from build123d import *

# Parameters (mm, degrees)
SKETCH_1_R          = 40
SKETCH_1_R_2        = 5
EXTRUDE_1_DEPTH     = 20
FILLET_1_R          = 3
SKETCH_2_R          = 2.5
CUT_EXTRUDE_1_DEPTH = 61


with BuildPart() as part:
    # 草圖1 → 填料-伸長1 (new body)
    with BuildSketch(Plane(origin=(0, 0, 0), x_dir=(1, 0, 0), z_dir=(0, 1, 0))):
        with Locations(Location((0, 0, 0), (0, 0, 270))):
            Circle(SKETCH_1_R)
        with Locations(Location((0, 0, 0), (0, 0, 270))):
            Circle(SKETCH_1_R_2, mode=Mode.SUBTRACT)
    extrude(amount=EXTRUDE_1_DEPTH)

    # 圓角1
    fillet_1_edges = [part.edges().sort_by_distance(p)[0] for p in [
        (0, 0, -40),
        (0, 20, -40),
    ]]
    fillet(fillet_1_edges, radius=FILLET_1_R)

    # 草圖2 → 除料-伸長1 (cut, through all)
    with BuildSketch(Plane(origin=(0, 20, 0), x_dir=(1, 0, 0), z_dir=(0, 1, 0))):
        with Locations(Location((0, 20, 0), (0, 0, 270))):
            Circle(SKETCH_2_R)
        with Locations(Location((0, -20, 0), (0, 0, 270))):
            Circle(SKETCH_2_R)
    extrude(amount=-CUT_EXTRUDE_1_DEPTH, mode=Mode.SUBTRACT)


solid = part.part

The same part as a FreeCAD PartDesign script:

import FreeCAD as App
import Part
import Sketcher
from FreeCAD import Vector
Q = App.Units.Quantity


def edges_at(feature, points):
    """Names of the edges that pass closest to the given points."""
    edges = feature.Shape.Edges
    near = lambda p: min(range(len(edges)), key=lambda i: edges[i].distToShape(Part.Vertex(*p))[0])
    return sorted({f"Edge{near(p) + 1}" for p in points})

doc = App.newDocument("Part")
params = doc.addObject("Spreadsheet::Sheet", "Params")
for row, (alias, value) in enumerate([
    ("sketch1_diameter", "80 mm"),
    ("sketch1_diameter2", "10 mm"),
    ("pad1_length", "20 mm"),
    ("fillet_radius", "3 mm"),
    ("sketch2_diameter", "5 mm"),
], start=1):
    params.set(f"A{row}", alias)
    params.set(f"B{row}", "=" + value)
    params.setAlias(f"B{row}", alias)

body = doc.addObject("PartDesign::Body", "Body")

# Sketch on XZ plane
sketch1 = body.newObject("Sketcher::SketchObject", "Sketch")
sketch1.AttachmentSupport = (doc.getObject("XZ_Plane"), [""])
sketch1.MapMode = "FlatFace"
sketch1.addGeometry(Part.Circle(Vector(0, 0, 0), Vector(0, 0, 1), 40), False)
sketch1.addGeometry(Part.Circle(Vector(0, 0, 0), Vector(0, 0, 1), 5), False)
sketch1.addConstraint(Sketcher.Constraint("Coincident", 0, 3, -1, 1))
sketch1.addConstraint(Sketcher.Constraint("Coincident", 1, 3, -1, 1))
sketch1.addConstraint(Sketcher.Constraint("Diameter", 0, Q("80 mm")))
sketch1.addConstraint(Sketcher.Constraint("Diameter", 1, Q("10 mm")))
sketch1.setExpression("Constraints[2]", "Params.sketch1_diameter")
sketch1.setExpression("Constraints[3]", "Params.sketch1_diameter2")
pad1 = body.newObject("PartDesign::Pad", "Pad")
pad1.Profile = sketch1
pad1.setExpression("Length", "Params.pad1_length")
pad1.Reversed = True
doc.recompute()

fillet = body.newObject("PartDesign::Fillet", "Fillet")
fillet.Base = (pad1, edges_at(pad1, [(0, 0, -40), (0, 20, -40)]))
fillet.setExpression("Radius", "Params.fillet_radius")

# Sketch on XZ plane
sketch2 = body.newObject("Sketcher::SketchObject", "Sketch001")
sketch2.AttachmentSupport = (doc.getObject("XZ_Plane"), [""])
sketch2.MapMode = "FlatFace"
sketch2.AttachmentOffset = App.Placement(Vector(0, 0, -20), App.Rotation())
sketch2.addGeometry(Part.Circle(Vector(0, -20, 0), Vector(0, 0, 1), 2.5), False)
sketch2.addGeometry(Part.Circle(Vector(0, 20, 0), Vector(0, 0, 1), 2.5), False)
sketch2.addConstraint(Sketcher.Constraint("Equal", 0, 1))
sketch2.addConstraint(Sketcher.Constraint("Symmetric", 0, 3, 1, 3, -1, 1))
sketch2.addConstraint(Sketcher.Constraint("PointOnObject", 0, 3, -2))
sketch2.addConstraint(Sketcher.Constraint("Diameter", 0, Q("5 mm")))
sketch2.addConstraint(Sketcher.Constraint("DistanceY", 0, 3, -1, 1, Q("20 mm")))
sketch2.setExpression("Constraints[3]", "Params.sketch2_diameter")
pocket1 = body.newObject("PartDesign::Pocket", "Pocket")
pocket1.Profile = sketch2
pocket1.Type = "ThroughAll"
pocket1.Reversed = True

doc.recompute()
